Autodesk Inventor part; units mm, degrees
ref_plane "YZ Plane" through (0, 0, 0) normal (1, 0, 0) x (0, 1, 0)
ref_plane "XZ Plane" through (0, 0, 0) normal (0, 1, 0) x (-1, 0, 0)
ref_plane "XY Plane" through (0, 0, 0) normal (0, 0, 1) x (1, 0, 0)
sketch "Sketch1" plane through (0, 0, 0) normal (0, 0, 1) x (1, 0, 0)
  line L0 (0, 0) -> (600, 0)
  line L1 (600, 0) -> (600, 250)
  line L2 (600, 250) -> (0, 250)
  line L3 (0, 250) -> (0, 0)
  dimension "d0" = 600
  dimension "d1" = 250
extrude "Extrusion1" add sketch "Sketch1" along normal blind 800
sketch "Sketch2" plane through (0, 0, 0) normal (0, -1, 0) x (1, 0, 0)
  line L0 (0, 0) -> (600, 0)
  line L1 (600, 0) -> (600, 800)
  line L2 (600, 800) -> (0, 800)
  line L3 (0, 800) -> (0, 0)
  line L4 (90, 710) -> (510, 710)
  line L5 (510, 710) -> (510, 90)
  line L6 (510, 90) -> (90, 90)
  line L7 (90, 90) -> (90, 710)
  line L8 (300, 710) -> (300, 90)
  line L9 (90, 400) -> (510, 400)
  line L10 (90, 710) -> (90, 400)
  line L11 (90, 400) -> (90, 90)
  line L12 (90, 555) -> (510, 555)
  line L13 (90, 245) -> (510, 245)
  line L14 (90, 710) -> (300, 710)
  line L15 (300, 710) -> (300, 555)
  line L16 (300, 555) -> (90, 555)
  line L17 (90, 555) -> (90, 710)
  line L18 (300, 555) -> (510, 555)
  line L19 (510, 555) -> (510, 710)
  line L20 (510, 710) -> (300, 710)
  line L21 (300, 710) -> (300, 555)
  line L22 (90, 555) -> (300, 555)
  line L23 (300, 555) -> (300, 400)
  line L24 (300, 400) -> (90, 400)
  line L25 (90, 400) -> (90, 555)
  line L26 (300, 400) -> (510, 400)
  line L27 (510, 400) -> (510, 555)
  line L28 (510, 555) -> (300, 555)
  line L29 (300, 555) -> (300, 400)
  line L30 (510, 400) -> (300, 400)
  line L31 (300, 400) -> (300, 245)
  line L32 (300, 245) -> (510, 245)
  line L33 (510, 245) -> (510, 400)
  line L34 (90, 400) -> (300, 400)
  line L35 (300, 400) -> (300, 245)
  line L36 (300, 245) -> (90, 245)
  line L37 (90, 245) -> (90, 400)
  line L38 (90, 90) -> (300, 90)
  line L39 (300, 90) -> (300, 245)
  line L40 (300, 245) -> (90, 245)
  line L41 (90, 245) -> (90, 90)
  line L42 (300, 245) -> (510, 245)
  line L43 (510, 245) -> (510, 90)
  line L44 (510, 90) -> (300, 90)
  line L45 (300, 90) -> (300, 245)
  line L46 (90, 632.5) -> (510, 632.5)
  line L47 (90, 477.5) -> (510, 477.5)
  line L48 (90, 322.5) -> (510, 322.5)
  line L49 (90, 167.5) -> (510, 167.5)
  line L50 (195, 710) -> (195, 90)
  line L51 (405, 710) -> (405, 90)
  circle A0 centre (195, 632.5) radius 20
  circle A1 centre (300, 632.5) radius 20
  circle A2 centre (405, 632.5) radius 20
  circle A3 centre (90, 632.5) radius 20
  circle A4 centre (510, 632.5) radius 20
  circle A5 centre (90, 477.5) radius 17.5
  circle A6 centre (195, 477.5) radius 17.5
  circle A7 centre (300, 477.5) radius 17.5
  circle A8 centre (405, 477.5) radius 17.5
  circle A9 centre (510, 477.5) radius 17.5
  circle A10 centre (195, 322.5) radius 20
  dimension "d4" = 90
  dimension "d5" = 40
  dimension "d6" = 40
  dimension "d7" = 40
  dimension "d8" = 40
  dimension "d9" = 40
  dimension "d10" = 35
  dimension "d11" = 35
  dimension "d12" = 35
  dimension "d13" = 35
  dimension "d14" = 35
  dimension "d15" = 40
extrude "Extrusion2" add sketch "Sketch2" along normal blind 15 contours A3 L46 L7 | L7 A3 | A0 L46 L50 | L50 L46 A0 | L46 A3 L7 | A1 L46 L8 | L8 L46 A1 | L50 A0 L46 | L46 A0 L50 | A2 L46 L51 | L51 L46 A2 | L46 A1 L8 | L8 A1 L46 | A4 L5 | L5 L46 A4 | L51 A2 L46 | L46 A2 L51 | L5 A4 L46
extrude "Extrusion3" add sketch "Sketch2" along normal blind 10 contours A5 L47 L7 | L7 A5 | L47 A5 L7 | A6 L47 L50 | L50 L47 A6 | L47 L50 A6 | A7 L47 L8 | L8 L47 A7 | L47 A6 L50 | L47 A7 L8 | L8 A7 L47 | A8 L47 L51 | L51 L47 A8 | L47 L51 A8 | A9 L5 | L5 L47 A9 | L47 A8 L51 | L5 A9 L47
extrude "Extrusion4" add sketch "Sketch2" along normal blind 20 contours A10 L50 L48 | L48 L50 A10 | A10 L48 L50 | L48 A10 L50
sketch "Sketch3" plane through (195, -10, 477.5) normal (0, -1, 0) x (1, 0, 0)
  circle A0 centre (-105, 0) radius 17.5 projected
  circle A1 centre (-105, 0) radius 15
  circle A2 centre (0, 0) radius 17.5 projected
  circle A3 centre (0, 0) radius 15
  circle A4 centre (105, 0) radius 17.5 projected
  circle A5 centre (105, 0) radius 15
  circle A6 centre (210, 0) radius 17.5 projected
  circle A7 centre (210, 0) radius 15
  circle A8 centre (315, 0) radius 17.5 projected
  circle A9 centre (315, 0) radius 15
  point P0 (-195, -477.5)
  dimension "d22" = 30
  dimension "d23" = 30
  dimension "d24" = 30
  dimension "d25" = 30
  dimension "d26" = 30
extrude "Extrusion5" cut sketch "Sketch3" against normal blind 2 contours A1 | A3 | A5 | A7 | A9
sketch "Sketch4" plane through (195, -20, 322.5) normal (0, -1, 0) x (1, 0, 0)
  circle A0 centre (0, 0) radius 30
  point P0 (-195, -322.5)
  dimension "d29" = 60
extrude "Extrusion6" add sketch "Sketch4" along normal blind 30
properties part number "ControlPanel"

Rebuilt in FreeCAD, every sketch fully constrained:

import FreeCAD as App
import Part
import Sketcher
from FreeCAD import Vector
Q = App.Units.Quantity


def add_polygon(sketch, points):
    """Adds a closed chain of lines whose ends are joined by coincident constraints."""
    first, n = sketch.GeometryCount, len(points)
    for a, b in zip(points, points[1:] + points[:1]):
        sketch.addGeometry(Part.LineSegment(App.Vector(*a, 0), App.Vector(*b, 0)), False)
    for i in range(n):
        sketch.addConstraint(Sketcher.Constraint("Coincident", first + i, 2, first + (i + 1) % n, 1))

doc = App.newDocument("Part")
body = doc.addObject("PartDesign::Body", "Body")

# Sketch on XY plane
sketch1 = body.newObject("Sketcher::SketchObject", "Sketch")
sketch1.AttachmentSupport = (doc.getObject("XY_Plane"), [""])
sketch1.MapMode = "FlatFace"
add_polygon(sketch1, [(0, 250), (0, 0), (600, 0), (600, 250)])  # lines 0-3
sketch1.addConstraint(Sketcher.Constraint("Vertical", 0))
sketch1.addConstraint(Sketcher.Constraint("Horizontal", 1))
sketch1.addConstraint(Sketcher.Constraint("Vertical", 2))
sketch1.addConstraint(Sketcher.Constraint("Horizontal", 3))
sketch1.addConstraint(Sketcher.Constraint("Coincident", 0, 2, -1, 1))
sketch1.addConstraint(Sketcher.Constraint("DistanceX", 1, 1, 1, 2, Q("600 mm")))
sketch1.addConstraint(Sketcher.Constraint("DistanceY", 0, 2, 0, 1, Q("250 mm")))
pad1 = body.newObject("PartDesign::Pad", "Pad")
pad1.Profile = sketch1
pad1.Length = 800

# Sketch on XZ plane
sketch2 = body.newObject("Sketcher::SketchObject", "Sketch001")
sketch2.AttachmentSupport = (doc.getObject("XZ_Plane"), [""])
sketch2.MapMode = "FlatFace"
sketch2.addGeometry(Part.Circle(Vector(90, 632, 0), Vector(0, 0, 1), 20), False)
sketch2.addGeometry(Part.Circle(Vector(195, 632, 0), Vector(0, 0, 1), 20), False)
sketch2.addGeometry(Part.Circle(Vector(300, 632, 0), Vector(0, 0, 1), 20), False)
sketch2.addGeometry(Part.Circle(Vector(405, 632, 0), Vector(0, 0, 1), 20), False)
sketch2.addGeometry(Part.Circle(Vector(510, 632, 0), Vector(0, 0, 1), 20), False)
sketch2.addConstraint(Sketcher.Constraint("Equal", 0, 1))
sketch2.addConstraint(Sketcher.Constraint("Equal", 1, 2))
sketch2.addConstraint(Sketcher.Constraint("Equal", 2, 3))
sketch2.addConstraint(Sketcher.Constraint("Equal", 3, 4))
sketch2.addConstraint(Sketcher.Constraint("Horizontal", 0, 3, 1, 3))
sketch2.addConstraint(Sketcher.Constraint("Horizontal", 1, 3, 2, 3))
sketch2.addConstraint(Sketcher.Constraint("Horizontal", 2, 3, 3, 3))
sketch2.addConstraint(Sketcher.Constraint("Horizontal", 3, 3, 4, 3))
sketch2.addConstraint(Sketcher.Constraint("Diameter", 0, Q("40 mm")))
sketch2.addConstraint(Sketcher.Constraint("DistanceX", -1, 1, 0, 3, Q("90 mm")))
sketch2.addConstraint(Sketcher.Constraint("DistanceX", -1, 1, 1, 3, Q("195 mm")))
sketch2.addConstraint(Sketcher.Constraint("DistanceX", -1, 1, 2, 3, Q("300 mm")))
sketch2.addConstraint(Sketcher.Constraint("DistanceX", -1, 1, 3, 3, Q("405 mm")))
sketch2.addConstraint(Sketcher.Constraint("DistanceX", -1, 1, 4, 3, Q("510 mm")))
sketch2.addConstraint(Sketcher.Constraint("DistanceY", -1, 1, 0, 3, Q("632.5 mm")))
pad2 = body.newObject("PartDesign::Pad", "Pad001")
pad2.Profile = sketch2
pad2.Length = 15

# Sketch on XZ plane
sketch3 = body.newObject("Sketcher::SketchObject", "Sketch002")
sketch3.AttachmentSupport = (doc.getObject("XZ_Plane"), [""])
sketch3.MapMode = "FlatFace"
sketch3.addGeometry(Part.Circle(Vector(90, 478, 0), Vector(0, 0, 1), 18), False)
sketch3.addGeometry(Part.Circle(Vector(195, 478, 0), Vector(0, 0, 1), 18), False)
sketch3.addGeometry(Part.Circle(Vector(300, 478, 0), Vector(0, 0, 1), 18), False)
sketch3.addGeometry(Part.Circle(Vector(405, 478, 0), Vector(0, 0, 1), 18), False)
sketch3.addGeometry(Part.Circle(Vector(510, 478, 0), Vector(0, 0, 1), 18), False)
sketch3.addConstraint(Sketcher.Constraint("Equal", 0, 1))
sketch3.addConstraint(Sketcher.Constraint("Equal", 1, 2))
sketch3.addConstraint(Sketcher.Constraint("Equal", 2, 3))
sketch3.addConstraint(Sketcher.Constraint("Equal", 3, 4))
sketch3.addConstraint(Sketcher.Constraint("Horizontal", 0, 3, 1, 3))
sketch3.addConstraint(Sketcher.Constraint("Horizontal", 1, 3, 2, 3))
sketch3.addConstraint(Sketcher.Constraint("Horizontal", 2, 3, 3, 3))
sketch3.addConstraint(Sketcher.Constraint("Horizontal", 3, 3, 4, 3))
sketch3.addConstraint(Sketcher.Constraint("Diameter", 0, Q("35 mm")))
sketch3.addConstraint(Sketcher.Constraint("DistanceX", -1, 1, 0, 3, Q("90 mm")))
sketch3.addConstraint(Sketcher.Constraint("DistanceX", -1, 1, 1, 3, Q("195 mm")))
sketch3.addConstraint(Sketcher.Constraint("DistanceX", -1, 1, 2, 3, Q("300 mm")))
sketch3.addConstraint(Sketcher.Constraint("DistanceX", -1, 1, 3, 3, Q("405 mm")))
sketch3.addConstraint(Sketcher.Constraint("DistanceX", -1, 1, 4, 3, Q("510 mm")))
sketch3.addConstraint(Sketcher.Constraint("DistanceY", -1, 1, 0, 3, Q("477.5 mm")))
pad3 = body.newObject("PartDesign::Pad", "Pad002")
pad3.Profile = sketch3
pad3.Length = 10

# Sketch on XZ plane
sketch4 = body.newObject("Sketcher::SketchObject", "Sketch003")
sketch4.AttachmentSupport = (doc.getObject("XZ_Plane"), [""])
sketch4.MapMode = "FlatFace"
sketch4.addGeometry(Part.Circle(Vector(195, 322, 0), Vector(0, 0, 1), 20), False)
sketch4.addConstraint(Sketcher.Constraint("Diameter", 0, Q("40 mm")))
sketch4.addConstraint(Sketcher.Constraint("DistanceX", -1, 1, 0, 3, Q("195 mm")))
sketch4.addConstraint(Sketcher.Constraint("DistanceY", -1, 1, 0, 3, Q("322.5 mm")))
pad4 = body.newObject("PartDesign::Pad", "Pad003")
pad4.Profile = sketch4
pad4.Length = 20

# Sketch on XZ plane
sketch5 = body.newObject("Sketcher::SketchObject", "Sketch004")
sketch5.AttachmentSupport = (doc.getObject("XZ_Plane"), [""])
sketch5.MapMode = "FlatFace"
sketch5.AttachmentOffset = App.Placement(Vector(0, 0, 10), App.Rotation())
sketch5.addGeometry(Part.Circle(Vector(90, 478, 0), Vector(0, 0, 1), 15), False)
sketch5.addGeometry(Part.Circle(Vector(195, 478, 0), Vector(0, 0, 1), 15), False)
sketch5.addGeometry(Part.Circle(Vector(300, 478, 0), Vector(0, 0, 1), 15), False)
sketch5.addGeometry(Part.Circle(Vector(405, 478, 0), Vector(0, 0, 1), 15), False)
sketch5.addGeometry(Part.Circle(Vector(510, 478, 0), Vector(0, 0, 1), 15), False)
sketch5.addConstraint(Sketcher.Constraint("Equal", 0, 1))
sketch5.addConstraint(Sketcher.Constraint("Equal", 1, 2))
sketch5.addConstraint(Sketcher.Constraint("Equal", 2, 3))
sketch5.addConstraint(Sketcher.Constraint("Equal", 3, 4))
sketch5.addConstraint(Sketcher.Constraint("Horizontal", 0, 3, 1, 3))
sketch5.addConstraint(Sketcher.Constraint("Horizontal", 1, 3, 2, 3))
sketch5.addConstraint(Sketcher.Constraint("Horizontal", 2, 3, 3, 3))
sketch5.addConstraint(Sketcher.Constraint("Horizontal", 3, 3, 4, 3))
sketch5.addConstraint(Sketcher.Constraint("Diameter", 0, Q("30 mm")))
sketch5.addConstraint(Sketcher.Constraint("DistanceX", -1, 1, 0, 3, Q("90 mm")))
sketch5.addConstraint(Sketcher.Constraint("DistanceX", -1, 1, 1, 3, Q("195 mm")))
sketch5.addConstraint(Sketcher.Constraint("DistanceX", -1, 1, 2, 3, Q("300 mm")))
sketch5.addConstraint(Sketcher.Constraint("DistanceX", -1, 1, 3, 3, Q("405 mm")))
sketch5.addConstraint(Sketcher.Constraint("DistanceX", -1, 1, 4, 3, Q("510 mm")))
sketch5.addConstraint(Sketcher.Constraint("DistanceY", -1, 1, 0, 3, Q("477.5 mm")))
pocket1 = body.newObject("PartDesign::Pocket", "Pocket")
pocket1.Profile = sketch5
pocket1.Length = 2

# Sketch on XZ plane
sketch6 = body.newObject("Sketcher::SketchObject", "Sketch005")
sketch6.AttachmentSupport = (doc.getObject("XZ_Plane"), [""])
sketch6.MapMode = "FlatFace"
sketch6.AttachmentOffset = App.Placement(Vector(0, 0, 20), App.Rotation())
sketch6.addGeometry(Part.Circle(Vector(195, 322, 0), Vector(0, 0, 1), 30), False)
sketch6.addConstraint(Sketcher.Constraint("Diameter", 0, Q("60 mm")))
sketch6.addConstraint(Sketcher.Constraint("DistanceX", -1, 1, 0, 3, Q("195 mm")))
sketch6.addConstraint(Sketcher.Constraint("DistanceY", -1, 1, 0, 3, Q("322.5 mm")))
pad5 = body.newObject("PartDesign::Pad", "Pad004")
pad5.Profile = sketch6
pad5.Length = 30

doc.recompute()
